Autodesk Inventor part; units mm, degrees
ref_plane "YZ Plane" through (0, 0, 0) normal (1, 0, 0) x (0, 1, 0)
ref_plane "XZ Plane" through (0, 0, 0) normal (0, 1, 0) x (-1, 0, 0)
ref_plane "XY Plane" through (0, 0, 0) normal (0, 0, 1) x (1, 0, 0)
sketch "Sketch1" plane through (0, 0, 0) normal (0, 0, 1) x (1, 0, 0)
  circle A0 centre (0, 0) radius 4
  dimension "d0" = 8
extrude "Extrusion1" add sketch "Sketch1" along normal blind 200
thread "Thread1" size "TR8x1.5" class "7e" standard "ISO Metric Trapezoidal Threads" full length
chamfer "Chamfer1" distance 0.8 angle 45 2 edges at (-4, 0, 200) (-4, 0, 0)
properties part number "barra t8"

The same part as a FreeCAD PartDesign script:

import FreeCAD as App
import Part
import Sketcher

V = App.Vector
Q = App.Units.Quantity


def edges_at(feature, points):
    """Names of the edges that pass closest to the given points."""
    edges = feature.Shape.Edges
    near = lambda p: min(range(len(edges)), key=lambda i: edges[i].distToShape(Part.Vertex(*p))[0])
    return sorted({f"Edge{near(p) + 1}" for p in points})

doc = App.newDocument("Part")
body = doc.addObject("PartDesign::Body", "Body")

sketch1 = body.newObject("Sketcher::SketchObject", "Sketch")
sketch1.AttachmentSupport = (doc.getObject("XY_Plane"), [""])
sketch1.MapMode = "FlatFace"
sketch1.addGeometry(Part.Circle(V(0, 0, 0), V(0, 0, 1), 4), False)
sketch1.addConstraint([
    Sketcher.Constraint("Coincident", 0, 3, -1, 1),
    Sketcher.Constraint("Diameter", 0, Q("8 mm")),
])
pad1 = body.newObject("PartDesign::Pad", "Pad")
pad1.Profile = sketch1
pad1.Length = 200
doc.recompute()

chamfer = body.newObject("PartDesign::Chamfer", "Chamfer")
chamfer.Base = (pad1, edges_at(pad1, [(-4, 0, 200), (-4, 0, 0)]))
chamfer.Size = 0.8

doc.recompute()
